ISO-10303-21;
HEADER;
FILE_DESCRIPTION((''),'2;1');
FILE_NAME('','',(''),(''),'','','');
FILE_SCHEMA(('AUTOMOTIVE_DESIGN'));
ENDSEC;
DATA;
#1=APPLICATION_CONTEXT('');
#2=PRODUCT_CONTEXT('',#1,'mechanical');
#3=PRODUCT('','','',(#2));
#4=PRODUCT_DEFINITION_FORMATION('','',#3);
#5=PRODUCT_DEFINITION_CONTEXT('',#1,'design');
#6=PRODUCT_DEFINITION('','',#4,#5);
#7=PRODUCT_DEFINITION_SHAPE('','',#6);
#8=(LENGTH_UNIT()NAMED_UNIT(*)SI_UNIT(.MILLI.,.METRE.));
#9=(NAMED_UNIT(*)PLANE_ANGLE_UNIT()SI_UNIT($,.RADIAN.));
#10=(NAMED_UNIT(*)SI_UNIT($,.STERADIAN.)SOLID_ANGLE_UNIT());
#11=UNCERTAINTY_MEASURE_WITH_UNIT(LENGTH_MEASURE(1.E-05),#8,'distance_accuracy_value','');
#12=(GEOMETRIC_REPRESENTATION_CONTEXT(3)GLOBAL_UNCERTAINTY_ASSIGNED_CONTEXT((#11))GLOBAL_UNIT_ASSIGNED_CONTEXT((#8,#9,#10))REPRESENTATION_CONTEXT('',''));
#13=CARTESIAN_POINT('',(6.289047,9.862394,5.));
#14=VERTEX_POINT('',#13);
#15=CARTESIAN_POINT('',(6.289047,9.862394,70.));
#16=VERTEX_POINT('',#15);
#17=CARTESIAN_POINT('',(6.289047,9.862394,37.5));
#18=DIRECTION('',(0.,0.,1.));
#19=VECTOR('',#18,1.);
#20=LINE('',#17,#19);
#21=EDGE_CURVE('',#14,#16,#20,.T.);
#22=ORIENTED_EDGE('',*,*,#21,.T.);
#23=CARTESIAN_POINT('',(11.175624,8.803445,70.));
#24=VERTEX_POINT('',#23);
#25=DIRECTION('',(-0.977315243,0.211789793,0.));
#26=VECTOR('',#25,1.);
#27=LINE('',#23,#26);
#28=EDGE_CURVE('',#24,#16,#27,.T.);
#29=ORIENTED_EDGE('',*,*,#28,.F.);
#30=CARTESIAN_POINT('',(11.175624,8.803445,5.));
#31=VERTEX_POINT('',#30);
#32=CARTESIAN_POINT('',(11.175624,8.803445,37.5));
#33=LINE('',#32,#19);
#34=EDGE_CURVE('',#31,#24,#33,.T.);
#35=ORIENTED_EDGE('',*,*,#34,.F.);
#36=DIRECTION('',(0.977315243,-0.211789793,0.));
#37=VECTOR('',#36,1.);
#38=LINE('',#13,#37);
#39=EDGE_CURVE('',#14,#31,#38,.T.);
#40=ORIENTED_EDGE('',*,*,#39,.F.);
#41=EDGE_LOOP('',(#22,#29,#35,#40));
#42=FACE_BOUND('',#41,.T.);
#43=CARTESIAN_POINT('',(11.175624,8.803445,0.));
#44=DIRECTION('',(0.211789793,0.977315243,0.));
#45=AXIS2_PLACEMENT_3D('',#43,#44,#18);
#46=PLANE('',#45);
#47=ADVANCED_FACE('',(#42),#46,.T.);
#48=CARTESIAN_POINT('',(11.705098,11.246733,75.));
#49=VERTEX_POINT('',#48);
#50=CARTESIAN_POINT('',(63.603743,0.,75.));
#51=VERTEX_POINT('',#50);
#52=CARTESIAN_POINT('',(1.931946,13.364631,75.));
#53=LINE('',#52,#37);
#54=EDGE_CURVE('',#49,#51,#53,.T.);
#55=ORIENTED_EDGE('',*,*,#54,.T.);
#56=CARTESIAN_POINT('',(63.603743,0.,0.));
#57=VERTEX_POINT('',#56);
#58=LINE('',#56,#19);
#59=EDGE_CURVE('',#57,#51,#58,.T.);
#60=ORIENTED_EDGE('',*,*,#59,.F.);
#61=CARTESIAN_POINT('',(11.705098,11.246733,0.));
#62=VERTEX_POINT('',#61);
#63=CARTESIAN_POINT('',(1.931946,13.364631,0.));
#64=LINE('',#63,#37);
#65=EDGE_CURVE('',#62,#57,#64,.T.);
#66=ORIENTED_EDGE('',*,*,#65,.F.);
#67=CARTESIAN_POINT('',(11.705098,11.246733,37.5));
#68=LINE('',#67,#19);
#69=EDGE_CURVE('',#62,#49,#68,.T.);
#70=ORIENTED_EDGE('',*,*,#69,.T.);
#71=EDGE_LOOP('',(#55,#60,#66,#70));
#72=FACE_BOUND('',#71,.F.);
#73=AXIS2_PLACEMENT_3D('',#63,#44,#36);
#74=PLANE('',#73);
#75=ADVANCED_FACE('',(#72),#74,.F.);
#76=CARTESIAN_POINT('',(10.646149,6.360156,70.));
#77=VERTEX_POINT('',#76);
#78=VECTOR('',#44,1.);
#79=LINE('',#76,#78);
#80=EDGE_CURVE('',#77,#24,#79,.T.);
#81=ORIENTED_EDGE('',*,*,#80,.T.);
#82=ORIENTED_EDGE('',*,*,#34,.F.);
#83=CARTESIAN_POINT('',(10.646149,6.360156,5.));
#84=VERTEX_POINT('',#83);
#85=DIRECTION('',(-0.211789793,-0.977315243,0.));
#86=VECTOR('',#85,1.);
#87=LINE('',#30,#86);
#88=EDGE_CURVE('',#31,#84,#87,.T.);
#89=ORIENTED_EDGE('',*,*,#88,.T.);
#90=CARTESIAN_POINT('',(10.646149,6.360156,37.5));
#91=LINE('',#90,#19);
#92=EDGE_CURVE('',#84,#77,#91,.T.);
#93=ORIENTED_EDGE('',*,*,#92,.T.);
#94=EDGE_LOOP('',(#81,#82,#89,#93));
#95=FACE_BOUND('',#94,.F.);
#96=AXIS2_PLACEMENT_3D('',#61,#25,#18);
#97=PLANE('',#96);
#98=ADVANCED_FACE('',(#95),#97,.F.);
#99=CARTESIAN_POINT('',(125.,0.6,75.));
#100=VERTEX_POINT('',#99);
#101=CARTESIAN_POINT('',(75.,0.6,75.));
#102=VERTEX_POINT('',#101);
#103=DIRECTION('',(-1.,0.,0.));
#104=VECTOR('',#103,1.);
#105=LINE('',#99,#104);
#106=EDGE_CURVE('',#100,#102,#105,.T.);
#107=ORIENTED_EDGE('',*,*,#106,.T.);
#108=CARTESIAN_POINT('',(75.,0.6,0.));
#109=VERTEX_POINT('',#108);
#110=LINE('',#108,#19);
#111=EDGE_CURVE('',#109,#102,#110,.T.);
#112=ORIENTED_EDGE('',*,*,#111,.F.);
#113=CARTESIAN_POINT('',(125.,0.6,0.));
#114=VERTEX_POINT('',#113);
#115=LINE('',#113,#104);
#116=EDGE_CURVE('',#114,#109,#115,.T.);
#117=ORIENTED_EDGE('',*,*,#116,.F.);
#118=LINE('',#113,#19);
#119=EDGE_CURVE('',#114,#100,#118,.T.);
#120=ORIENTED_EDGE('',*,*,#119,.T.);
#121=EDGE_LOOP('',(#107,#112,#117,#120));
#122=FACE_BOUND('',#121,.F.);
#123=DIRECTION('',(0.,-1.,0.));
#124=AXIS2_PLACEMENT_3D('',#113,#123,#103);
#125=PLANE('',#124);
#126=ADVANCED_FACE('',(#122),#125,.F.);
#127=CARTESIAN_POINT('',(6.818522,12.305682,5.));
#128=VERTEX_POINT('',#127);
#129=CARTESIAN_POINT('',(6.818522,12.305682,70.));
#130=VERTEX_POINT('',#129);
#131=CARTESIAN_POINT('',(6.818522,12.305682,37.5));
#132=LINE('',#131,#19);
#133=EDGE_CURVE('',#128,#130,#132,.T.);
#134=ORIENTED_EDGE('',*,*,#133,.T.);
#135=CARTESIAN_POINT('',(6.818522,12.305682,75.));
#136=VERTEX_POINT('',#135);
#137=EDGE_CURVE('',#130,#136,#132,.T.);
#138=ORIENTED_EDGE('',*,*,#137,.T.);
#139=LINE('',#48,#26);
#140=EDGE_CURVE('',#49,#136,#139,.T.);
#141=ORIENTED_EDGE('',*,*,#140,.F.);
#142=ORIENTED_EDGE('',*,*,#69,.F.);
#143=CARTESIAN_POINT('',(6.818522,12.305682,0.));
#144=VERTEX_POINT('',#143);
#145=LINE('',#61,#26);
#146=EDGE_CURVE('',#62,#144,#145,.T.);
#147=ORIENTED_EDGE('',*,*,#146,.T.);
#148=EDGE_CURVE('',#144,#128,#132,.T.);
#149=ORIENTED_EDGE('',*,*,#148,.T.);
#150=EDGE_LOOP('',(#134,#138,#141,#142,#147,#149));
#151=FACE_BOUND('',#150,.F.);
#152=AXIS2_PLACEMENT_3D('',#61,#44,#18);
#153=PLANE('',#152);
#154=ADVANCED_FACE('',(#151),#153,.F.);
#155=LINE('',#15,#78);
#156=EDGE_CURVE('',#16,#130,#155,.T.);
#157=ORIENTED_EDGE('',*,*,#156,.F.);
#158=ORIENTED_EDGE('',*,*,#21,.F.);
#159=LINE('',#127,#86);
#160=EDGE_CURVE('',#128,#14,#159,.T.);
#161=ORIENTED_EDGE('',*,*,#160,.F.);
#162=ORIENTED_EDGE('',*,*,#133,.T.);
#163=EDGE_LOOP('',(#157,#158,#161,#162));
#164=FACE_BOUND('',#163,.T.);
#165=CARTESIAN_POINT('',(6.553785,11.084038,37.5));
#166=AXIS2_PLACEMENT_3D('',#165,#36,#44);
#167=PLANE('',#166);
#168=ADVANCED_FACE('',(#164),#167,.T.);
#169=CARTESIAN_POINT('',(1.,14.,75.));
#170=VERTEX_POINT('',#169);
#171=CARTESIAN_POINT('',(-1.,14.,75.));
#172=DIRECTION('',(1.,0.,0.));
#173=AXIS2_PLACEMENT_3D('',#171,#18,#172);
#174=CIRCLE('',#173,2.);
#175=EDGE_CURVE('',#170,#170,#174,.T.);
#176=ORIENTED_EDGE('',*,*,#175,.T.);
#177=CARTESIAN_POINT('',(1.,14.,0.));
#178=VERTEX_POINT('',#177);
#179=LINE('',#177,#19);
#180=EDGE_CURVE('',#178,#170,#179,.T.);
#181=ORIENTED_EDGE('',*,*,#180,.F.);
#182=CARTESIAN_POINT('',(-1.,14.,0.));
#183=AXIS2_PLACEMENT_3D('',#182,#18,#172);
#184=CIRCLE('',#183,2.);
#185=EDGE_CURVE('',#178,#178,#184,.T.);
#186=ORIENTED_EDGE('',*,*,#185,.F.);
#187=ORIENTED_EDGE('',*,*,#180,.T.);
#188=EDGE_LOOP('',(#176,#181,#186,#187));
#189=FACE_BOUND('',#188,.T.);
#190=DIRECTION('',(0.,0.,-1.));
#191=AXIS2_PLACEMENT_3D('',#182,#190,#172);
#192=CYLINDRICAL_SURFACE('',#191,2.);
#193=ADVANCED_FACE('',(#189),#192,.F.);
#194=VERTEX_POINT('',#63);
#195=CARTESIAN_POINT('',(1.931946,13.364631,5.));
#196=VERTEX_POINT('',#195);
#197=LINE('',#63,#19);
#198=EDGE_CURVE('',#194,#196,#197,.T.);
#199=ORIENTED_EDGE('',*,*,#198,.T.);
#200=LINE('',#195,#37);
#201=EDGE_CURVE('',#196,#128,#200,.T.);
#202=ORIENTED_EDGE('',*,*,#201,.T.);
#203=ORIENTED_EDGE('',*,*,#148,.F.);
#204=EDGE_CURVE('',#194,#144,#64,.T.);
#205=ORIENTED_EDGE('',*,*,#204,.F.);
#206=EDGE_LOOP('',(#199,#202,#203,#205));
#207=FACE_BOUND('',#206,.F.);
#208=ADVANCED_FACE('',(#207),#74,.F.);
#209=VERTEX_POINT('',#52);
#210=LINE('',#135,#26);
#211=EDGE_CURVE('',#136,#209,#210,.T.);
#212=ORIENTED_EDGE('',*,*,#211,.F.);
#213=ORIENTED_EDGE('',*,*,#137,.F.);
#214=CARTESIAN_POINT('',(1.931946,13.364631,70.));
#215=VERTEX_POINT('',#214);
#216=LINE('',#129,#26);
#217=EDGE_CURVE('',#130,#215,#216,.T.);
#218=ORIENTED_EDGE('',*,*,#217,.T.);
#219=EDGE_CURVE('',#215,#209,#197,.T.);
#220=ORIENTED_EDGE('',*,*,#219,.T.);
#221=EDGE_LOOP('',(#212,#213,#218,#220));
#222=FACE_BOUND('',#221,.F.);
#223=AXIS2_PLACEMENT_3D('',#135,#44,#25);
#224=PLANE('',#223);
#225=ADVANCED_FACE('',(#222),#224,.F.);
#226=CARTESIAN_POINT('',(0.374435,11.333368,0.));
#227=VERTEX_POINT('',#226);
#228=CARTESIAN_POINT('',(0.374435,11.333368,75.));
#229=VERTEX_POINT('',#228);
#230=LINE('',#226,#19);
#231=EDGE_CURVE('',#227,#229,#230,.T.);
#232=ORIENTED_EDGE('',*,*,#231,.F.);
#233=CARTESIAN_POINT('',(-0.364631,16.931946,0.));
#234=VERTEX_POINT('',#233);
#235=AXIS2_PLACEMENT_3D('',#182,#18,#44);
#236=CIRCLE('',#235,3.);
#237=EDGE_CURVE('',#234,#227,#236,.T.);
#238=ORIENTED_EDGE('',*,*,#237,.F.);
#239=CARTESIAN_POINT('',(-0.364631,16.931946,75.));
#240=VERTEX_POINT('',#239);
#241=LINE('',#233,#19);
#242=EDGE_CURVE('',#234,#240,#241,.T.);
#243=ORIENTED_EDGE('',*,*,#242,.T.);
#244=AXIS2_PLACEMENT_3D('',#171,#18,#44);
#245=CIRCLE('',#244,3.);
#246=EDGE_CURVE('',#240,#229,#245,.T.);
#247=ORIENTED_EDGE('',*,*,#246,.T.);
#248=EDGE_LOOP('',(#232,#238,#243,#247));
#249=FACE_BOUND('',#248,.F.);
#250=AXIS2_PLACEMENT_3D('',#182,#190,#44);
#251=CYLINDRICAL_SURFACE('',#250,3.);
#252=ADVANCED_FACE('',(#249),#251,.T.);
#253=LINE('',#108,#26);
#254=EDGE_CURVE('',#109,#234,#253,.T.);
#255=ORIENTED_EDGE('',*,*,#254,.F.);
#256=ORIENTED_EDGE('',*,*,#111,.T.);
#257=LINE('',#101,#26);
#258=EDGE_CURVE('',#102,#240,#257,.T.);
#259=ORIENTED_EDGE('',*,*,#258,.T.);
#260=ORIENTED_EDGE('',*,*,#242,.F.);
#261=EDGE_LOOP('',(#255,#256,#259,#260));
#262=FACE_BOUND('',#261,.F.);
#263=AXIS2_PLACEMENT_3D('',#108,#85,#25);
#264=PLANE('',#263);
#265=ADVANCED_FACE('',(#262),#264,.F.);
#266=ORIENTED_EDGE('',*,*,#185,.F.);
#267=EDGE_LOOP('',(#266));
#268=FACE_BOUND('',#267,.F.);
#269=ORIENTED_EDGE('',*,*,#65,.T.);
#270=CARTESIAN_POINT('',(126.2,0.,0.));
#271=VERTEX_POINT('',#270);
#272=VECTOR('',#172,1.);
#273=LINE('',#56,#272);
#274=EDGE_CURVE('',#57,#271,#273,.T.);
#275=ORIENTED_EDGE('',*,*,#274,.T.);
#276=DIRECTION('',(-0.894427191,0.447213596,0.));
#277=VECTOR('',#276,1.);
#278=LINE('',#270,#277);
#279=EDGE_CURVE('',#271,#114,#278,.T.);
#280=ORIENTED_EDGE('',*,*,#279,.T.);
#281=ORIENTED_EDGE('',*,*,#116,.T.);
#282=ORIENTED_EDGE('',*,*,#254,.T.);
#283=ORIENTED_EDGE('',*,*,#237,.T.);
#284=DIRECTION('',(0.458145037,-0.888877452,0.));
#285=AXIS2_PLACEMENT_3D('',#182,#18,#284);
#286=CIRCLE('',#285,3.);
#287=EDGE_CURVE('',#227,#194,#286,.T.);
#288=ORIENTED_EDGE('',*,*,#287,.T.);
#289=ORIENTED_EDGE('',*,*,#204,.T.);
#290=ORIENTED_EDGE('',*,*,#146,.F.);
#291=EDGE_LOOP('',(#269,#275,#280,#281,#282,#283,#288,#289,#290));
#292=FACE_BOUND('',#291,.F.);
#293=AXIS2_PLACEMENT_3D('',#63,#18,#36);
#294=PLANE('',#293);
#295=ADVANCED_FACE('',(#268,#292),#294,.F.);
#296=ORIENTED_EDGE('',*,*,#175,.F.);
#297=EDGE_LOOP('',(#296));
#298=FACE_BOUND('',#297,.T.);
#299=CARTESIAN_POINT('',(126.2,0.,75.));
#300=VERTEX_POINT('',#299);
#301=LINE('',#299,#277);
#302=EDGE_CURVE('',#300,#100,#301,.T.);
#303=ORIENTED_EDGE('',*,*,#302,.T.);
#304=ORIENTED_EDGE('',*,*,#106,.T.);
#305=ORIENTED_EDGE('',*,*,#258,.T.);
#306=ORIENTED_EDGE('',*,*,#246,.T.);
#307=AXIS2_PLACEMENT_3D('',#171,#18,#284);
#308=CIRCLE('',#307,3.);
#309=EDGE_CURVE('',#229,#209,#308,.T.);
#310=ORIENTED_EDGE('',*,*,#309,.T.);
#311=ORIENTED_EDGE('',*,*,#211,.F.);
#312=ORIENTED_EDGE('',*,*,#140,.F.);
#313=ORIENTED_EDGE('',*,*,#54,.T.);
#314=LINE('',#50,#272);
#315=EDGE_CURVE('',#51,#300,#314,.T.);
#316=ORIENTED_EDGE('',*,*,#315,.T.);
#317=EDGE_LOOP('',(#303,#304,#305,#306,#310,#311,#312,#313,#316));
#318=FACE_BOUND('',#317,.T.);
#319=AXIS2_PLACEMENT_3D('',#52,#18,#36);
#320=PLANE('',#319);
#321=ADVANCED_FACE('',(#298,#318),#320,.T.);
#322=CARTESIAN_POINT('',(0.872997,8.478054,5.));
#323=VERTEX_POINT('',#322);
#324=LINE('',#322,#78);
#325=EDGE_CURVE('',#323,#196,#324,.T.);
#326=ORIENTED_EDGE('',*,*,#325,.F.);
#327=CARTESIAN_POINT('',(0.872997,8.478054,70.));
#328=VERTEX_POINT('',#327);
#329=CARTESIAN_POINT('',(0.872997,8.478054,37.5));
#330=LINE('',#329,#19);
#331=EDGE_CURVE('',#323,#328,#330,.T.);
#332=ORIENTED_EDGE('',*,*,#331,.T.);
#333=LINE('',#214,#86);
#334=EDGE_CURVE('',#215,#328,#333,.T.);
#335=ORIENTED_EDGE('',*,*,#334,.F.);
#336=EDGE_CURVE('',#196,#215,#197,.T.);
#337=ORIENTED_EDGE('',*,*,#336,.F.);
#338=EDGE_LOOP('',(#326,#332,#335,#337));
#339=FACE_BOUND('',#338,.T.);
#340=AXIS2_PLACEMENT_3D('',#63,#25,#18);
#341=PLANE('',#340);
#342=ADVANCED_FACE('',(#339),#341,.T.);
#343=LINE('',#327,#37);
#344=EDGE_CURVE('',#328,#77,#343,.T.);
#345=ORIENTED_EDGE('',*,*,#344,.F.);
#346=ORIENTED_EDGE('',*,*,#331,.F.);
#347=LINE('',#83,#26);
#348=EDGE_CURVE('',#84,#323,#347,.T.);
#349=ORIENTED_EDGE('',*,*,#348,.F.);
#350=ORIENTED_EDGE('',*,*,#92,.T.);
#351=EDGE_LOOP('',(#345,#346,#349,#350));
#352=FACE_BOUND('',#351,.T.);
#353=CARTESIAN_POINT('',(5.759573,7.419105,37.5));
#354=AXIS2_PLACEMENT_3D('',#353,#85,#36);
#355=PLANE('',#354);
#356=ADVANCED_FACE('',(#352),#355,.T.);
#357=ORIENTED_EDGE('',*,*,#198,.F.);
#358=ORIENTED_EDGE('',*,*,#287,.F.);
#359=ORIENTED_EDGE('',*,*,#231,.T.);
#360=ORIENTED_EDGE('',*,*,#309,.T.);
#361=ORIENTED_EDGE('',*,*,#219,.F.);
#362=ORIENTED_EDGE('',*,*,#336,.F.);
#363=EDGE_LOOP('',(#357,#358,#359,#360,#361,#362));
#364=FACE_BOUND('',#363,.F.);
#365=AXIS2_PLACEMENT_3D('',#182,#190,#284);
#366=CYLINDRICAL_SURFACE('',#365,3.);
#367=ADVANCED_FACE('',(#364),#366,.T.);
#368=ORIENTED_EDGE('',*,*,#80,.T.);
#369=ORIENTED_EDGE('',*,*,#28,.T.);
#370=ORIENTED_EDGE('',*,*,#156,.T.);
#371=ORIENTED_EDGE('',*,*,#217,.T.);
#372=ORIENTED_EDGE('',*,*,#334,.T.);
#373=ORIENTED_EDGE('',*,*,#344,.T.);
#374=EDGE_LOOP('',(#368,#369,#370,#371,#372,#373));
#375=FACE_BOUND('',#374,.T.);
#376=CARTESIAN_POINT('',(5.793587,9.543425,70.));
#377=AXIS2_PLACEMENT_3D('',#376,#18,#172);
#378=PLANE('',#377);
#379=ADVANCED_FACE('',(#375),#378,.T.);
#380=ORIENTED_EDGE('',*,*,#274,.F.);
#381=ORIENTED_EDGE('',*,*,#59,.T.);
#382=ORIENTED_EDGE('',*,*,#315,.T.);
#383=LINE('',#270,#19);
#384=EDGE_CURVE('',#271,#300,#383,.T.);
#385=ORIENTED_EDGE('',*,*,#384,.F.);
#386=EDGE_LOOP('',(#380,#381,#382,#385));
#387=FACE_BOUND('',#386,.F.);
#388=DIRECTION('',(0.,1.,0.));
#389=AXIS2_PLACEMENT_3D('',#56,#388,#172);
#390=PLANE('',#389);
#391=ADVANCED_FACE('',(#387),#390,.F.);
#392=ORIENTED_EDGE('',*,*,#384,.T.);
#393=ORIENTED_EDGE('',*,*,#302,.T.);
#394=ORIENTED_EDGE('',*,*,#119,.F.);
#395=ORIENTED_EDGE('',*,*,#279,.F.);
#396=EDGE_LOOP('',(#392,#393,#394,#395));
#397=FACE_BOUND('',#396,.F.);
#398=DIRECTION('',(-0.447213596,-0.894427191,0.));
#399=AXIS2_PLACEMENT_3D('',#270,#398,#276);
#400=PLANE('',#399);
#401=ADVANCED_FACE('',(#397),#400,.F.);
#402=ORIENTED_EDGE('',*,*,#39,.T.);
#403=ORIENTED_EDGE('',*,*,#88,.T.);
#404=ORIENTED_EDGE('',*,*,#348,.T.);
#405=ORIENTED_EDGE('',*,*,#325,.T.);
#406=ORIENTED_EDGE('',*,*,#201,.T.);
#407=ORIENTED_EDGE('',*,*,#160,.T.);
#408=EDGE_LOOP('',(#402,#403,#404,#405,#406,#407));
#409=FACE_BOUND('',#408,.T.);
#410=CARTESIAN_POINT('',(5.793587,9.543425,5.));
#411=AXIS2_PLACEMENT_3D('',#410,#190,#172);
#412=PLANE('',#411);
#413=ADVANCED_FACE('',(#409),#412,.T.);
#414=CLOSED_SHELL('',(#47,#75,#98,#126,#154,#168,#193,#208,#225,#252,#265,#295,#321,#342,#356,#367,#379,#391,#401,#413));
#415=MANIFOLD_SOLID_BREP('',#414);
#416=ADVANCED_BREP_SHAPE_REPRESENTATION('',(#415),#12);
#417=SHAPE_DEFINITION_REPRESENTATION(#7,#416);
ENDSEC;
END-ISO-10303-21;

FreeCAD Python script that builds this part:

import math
import FreeCAD as App
import Part
import Sketcher

V = App.Vector


def add_polygon(sketch, points):
    """Adds a closed chain of lines whose ends are joined by coincident constraints."""
    first, n = sketch.GeometryCount, len(points)
    for a, b in zip(points, points[1:] + points[:1]):
        sketch.addGeometry(Part.LineSegment(App.Vector(*a, 0), App.Vector(*b, 0)), False)
    for i in range(n):
        sketch.addConstraint(Sketcher.Constraint("Coincident", first + i, 2, first + (i + 1) % n, 1))

doc = App.newDocument("Part")
body = doc.addObject("PartDesign::Body", "Body")

# Sketch on XY plane
sketch1 = body.newObject("Sketcher::SketchObject", "Sketch")
sketch1.AttachmentSupport = (doc.getObject("XY_Plane"), [""])
sketch1.MapMode = "FlatFace"
sketch1.addGeometry([
    Part.LineSegment(V(75, 0.6, 0), V(-0.4, 16.9, 0)),  # 0
    Part.ArcOfCircle(Part.Circle(V(-1, 14, 0), V(0, 0, 1), 3), math.radians(78), math.radians(297)),  # 1
    Part.ArcOfCircle(Part.Circle(V(-1, 14, 0), V(0, 0, 1), 3), math.radians(-63), math.radians(-12)),  # 2
    Part.LineSegment(V(1.9, 13.4, 0), V(63.6, 0, 0)),  # 3
    Part.LineSegment(V(63.6, 0, 0), V(126.2, 0, 0)),  # 4
    Part.LineSegment(V(126.2, 0, 0), V(125, 0.6, 0)),  # 5
    Part.LineSegment(V(125, 0.6, 0), V(75, 0.6, 0)),  # 6
    Part.Circle(V(-1, 14, 0), V(0, 0, 1), 2),  # 7
], False)
sketch1.addConstraint([
    Sketcher.Constraint("Tangent", 0, 2, 1, 1),
    Sketcher.Constraint("Tangent", 1, 2, 2, 1),
    Sketcher.Constraint("Coincident", 2, 2, 3, 1),
    Sketcher.Constraint("Coincident", 3, 2, 4, 1),
    Sketcher.Constraint("Coincident", 4, 2, 5, 1),
    Sketcher.Constraint("Coincident", 5, 2, 6, 1),
    Sketcher.Constraint("Coincident", 6, 2, 0, 1),
    Sketcher.Constraint("Horizontal", 4),
    Sketcher.Constraint("Horizontal", 6),
    Sketcher.Constraint("Coincident", 7, 3, 1, 3),
    Sketcher.Constraint("Equal", 1, 2),
    Sketcher.Constraint("PointOnObject", 3, 2, -1),
    Sketcher.Constraint("Parallel", 0, 3),
    Sketcher.Constraint("Diameter", 7, 4.0),
    Sketcher.Constraint("Radius", 1, 3.0),
    Sketcher.Constraint("DistanceX", 6, 2, 6, 1, 50.0),
    Sketcher.Constraint("DistanceX", 1, 3, -1, 1, 1.0),
    Sketcher.Constraint("DistanceY", -1, 1, 1, 3, 14.0),
    Sketcher.Constraint("DistanceX", -1, 1, 5, 2, 125.0),
    Sketcher.Constraint("DistanceX", -1, 1, 4, 2, 126.2),
    Sketcher.Constraint("DistanceY", -1, 1, 5, 2, 0.6),
    Sketcher.Constraint("Distance", 3, 63.10328),
    Sketcher.Constraint("DistanceY", 1, 2, 0, 2, 5.598578),
])
pad1 = body.newObject("PartDesign::Pad", "Pad")
pad1.Profile = sketch1
pad1.Length = 75

# Sketch on an angled plane
sketch2 = body.newObject("Sketcher::SketchObject", "Sketch001")
sketch2.Placement = App.Placement(V(2.852941, 13.165046, 0), App.Rotation(V(0.977315243, -0.211789793, 0), V(0, 0, 1.000000001), V(-0.211789793, -0.977315243, 0), "ZXY"))
add_polygon(sketch2, [(-1, 75), (-1, 0), (9, 0), (9, 75)])  # lines 0-3
sketch2.addConstraint([
    Sketcher.Constraint("Vertical", 0),
    Sketcher.Constraint("Horizontal", 1),
    Sketcher.Constraint("Vertical", 2),
    Sketcher.Constraint("Horizontal", 3),
    Sketcher.Constraint("PointOnObject", 0, 2, -1),
    Sketcher.Constraint("DistanceX", 1, 1, 1, 2, 10.0),
    Sketcher.Constraint("DistanceY", 0, 2, 0, 1, 75.0),
    Sketcher.Constraint("DistanceX", 0, 2, -1, 1, 0.942372),
])
pad2 = body.newObject("PartDesign::Pad", "Pad001")
pad2.Profile = sketch2
pad2.Length = 5

# Sketch on an angled plane
sketch3 = body.newObject("Sketcher::SketchObject", "Sketch002")
sketch3.Placement = App.Placement(V(8.852158, -1.918313, 0), App.Rotation(V(0.211789793, 0.977315243, 0), V(0, 0, 1.000000001), V(0.977315243, -0.211789793, 0), "ZXY"))
add_polygon(sketch3, [(11, 75), (11, 0), (13.5, 0), (13.5, 75)])  # lines 0-3
sketch3.addConstraint([
    Sketcher.Constraint("Vertical", 0),
    Sketcher.Constraint("Horizontal", 1),
    Sketcher.Constraint("Vertical", 2),
    Sketcher.Constraint("Horizontal", 3),
    Sketcher.Constraint("PointOnObject", 0, 2, -1),
    Sketcher.Constraint("DistanceY", 0, 2, 0, 1, 75.0),
    Sketcher.Constraint("DistanceX", 1, 1, 1, 2, 2.5),
    Sketcher.Constraint("DistanceX", -1, 1, 0, 2, 10.970624),
])
pocket1 = body.newObject("PartDesign::Pocket", "Pocket")
pocket1.Profile = sketch3
pocket1.Length = 5

# Sketch on XY plane
sketch4 = body.newObject("Sketcher::SketchObject", "Sketch003")
sketch4.AttachmentSupport = (doc.getObject("XY_Plane"), [""])
sketch4.MapMode = "FlatFace"
sketch4.AttachmentOffset = App.Placement(V(0, 0, 75), App.Rotation())
add_polygon(sketch4, [(6.3, 9.9), (6.8, 12.3), (1.9, 13.4), (0.9, 8.5), (10.6, 6.4), (11.2, 8.8)])  # lines 0-5
sketch4.addConstraint([
    Sketcher.Constraint("Perpendicular", 0, 1),
    Sketcher.Constraint("Perpendicular", 1, 2),
    Sketcher.Constraint("Perpendicular", 2, 3),
    Sketcher.Constraint("Perpendicular", 3, 4),
    Sketcher.Constraint("Perpendicular", 4, 5),
    Sketcher.Constraint("Equal", 1, 2),
    Sketcher.Constraint("Equal", 0, 4),
    Sketcher.Constraint("Equal", 2, 5),
    Sketcher.Constraint("Distance", 1, 5.0),
    Sketcher.Constraint("DistanceX", 0, 2, 4, 2, 4.357102),
    Sketcher.Constraint("DistanceX", -1, 1, 0, 2, 6.818522),
    Sketcher.Constraint("DistanceY", -1, 1, 0, 2, 12.305682),
])
pocket2 = body.newObject("PartDesign::Pocket", "Pocket001")
pocket2.Profile = sketch4
pocket2.Length = 5

# Sketch on XY plane
sketch5 = body.newObject("Sketcher::SketchObject", "Sketch004")
sketch5.AttachmentSupport = (doc.getObject("XY_Plane"), [""])
sketch5.MapMode = "FlatFace"
add_polygon(sketch5, [(1.9, 13.4), (6.8, 12.3), (6.3, 9.9), (11.2, 8.8), (10.6, 6.4), (0.9, 8.5)])  # lines 0-5
sketch5.addConstraint([
    Sketcher.Constraint("Perpendicular", 0, 1),
    Sketcher.Constraint("Perpendicular", 1, 2),
    Sketcher.Constraint("Perpendicular", 2, 3),
    Sketcher.Constraint("Perpendicular", 3, 4),
    Sketcher.Constraint("Perpendicular", 4, 5),
    Sketcher.Constraint("Equal", 0, 2),
    Sketcher.Constraint("Equal", 1, 3),
    Sketcher.Constraint("Equal", 2, 5),
    Sketcher.Constraint("Distance", 0, 5.0),
    Sketcher.Constraint("DistanceX", 0, 2, 2, 2, 4.357102),
    Sketcher.Constraint("DistanceX", -1, 1, 0, 2, 6.818522),
    Sketcher.Constraint("DistanceY", -1, 1, 0, 2, 12.305682),
])
pocket3 = body.newObject("PartDesign::Pocket", "Pocket002")
pocket3.Profile = sketch5
pocket3.Length = 5
pocket3.Reversed = True

doc.recompute()
